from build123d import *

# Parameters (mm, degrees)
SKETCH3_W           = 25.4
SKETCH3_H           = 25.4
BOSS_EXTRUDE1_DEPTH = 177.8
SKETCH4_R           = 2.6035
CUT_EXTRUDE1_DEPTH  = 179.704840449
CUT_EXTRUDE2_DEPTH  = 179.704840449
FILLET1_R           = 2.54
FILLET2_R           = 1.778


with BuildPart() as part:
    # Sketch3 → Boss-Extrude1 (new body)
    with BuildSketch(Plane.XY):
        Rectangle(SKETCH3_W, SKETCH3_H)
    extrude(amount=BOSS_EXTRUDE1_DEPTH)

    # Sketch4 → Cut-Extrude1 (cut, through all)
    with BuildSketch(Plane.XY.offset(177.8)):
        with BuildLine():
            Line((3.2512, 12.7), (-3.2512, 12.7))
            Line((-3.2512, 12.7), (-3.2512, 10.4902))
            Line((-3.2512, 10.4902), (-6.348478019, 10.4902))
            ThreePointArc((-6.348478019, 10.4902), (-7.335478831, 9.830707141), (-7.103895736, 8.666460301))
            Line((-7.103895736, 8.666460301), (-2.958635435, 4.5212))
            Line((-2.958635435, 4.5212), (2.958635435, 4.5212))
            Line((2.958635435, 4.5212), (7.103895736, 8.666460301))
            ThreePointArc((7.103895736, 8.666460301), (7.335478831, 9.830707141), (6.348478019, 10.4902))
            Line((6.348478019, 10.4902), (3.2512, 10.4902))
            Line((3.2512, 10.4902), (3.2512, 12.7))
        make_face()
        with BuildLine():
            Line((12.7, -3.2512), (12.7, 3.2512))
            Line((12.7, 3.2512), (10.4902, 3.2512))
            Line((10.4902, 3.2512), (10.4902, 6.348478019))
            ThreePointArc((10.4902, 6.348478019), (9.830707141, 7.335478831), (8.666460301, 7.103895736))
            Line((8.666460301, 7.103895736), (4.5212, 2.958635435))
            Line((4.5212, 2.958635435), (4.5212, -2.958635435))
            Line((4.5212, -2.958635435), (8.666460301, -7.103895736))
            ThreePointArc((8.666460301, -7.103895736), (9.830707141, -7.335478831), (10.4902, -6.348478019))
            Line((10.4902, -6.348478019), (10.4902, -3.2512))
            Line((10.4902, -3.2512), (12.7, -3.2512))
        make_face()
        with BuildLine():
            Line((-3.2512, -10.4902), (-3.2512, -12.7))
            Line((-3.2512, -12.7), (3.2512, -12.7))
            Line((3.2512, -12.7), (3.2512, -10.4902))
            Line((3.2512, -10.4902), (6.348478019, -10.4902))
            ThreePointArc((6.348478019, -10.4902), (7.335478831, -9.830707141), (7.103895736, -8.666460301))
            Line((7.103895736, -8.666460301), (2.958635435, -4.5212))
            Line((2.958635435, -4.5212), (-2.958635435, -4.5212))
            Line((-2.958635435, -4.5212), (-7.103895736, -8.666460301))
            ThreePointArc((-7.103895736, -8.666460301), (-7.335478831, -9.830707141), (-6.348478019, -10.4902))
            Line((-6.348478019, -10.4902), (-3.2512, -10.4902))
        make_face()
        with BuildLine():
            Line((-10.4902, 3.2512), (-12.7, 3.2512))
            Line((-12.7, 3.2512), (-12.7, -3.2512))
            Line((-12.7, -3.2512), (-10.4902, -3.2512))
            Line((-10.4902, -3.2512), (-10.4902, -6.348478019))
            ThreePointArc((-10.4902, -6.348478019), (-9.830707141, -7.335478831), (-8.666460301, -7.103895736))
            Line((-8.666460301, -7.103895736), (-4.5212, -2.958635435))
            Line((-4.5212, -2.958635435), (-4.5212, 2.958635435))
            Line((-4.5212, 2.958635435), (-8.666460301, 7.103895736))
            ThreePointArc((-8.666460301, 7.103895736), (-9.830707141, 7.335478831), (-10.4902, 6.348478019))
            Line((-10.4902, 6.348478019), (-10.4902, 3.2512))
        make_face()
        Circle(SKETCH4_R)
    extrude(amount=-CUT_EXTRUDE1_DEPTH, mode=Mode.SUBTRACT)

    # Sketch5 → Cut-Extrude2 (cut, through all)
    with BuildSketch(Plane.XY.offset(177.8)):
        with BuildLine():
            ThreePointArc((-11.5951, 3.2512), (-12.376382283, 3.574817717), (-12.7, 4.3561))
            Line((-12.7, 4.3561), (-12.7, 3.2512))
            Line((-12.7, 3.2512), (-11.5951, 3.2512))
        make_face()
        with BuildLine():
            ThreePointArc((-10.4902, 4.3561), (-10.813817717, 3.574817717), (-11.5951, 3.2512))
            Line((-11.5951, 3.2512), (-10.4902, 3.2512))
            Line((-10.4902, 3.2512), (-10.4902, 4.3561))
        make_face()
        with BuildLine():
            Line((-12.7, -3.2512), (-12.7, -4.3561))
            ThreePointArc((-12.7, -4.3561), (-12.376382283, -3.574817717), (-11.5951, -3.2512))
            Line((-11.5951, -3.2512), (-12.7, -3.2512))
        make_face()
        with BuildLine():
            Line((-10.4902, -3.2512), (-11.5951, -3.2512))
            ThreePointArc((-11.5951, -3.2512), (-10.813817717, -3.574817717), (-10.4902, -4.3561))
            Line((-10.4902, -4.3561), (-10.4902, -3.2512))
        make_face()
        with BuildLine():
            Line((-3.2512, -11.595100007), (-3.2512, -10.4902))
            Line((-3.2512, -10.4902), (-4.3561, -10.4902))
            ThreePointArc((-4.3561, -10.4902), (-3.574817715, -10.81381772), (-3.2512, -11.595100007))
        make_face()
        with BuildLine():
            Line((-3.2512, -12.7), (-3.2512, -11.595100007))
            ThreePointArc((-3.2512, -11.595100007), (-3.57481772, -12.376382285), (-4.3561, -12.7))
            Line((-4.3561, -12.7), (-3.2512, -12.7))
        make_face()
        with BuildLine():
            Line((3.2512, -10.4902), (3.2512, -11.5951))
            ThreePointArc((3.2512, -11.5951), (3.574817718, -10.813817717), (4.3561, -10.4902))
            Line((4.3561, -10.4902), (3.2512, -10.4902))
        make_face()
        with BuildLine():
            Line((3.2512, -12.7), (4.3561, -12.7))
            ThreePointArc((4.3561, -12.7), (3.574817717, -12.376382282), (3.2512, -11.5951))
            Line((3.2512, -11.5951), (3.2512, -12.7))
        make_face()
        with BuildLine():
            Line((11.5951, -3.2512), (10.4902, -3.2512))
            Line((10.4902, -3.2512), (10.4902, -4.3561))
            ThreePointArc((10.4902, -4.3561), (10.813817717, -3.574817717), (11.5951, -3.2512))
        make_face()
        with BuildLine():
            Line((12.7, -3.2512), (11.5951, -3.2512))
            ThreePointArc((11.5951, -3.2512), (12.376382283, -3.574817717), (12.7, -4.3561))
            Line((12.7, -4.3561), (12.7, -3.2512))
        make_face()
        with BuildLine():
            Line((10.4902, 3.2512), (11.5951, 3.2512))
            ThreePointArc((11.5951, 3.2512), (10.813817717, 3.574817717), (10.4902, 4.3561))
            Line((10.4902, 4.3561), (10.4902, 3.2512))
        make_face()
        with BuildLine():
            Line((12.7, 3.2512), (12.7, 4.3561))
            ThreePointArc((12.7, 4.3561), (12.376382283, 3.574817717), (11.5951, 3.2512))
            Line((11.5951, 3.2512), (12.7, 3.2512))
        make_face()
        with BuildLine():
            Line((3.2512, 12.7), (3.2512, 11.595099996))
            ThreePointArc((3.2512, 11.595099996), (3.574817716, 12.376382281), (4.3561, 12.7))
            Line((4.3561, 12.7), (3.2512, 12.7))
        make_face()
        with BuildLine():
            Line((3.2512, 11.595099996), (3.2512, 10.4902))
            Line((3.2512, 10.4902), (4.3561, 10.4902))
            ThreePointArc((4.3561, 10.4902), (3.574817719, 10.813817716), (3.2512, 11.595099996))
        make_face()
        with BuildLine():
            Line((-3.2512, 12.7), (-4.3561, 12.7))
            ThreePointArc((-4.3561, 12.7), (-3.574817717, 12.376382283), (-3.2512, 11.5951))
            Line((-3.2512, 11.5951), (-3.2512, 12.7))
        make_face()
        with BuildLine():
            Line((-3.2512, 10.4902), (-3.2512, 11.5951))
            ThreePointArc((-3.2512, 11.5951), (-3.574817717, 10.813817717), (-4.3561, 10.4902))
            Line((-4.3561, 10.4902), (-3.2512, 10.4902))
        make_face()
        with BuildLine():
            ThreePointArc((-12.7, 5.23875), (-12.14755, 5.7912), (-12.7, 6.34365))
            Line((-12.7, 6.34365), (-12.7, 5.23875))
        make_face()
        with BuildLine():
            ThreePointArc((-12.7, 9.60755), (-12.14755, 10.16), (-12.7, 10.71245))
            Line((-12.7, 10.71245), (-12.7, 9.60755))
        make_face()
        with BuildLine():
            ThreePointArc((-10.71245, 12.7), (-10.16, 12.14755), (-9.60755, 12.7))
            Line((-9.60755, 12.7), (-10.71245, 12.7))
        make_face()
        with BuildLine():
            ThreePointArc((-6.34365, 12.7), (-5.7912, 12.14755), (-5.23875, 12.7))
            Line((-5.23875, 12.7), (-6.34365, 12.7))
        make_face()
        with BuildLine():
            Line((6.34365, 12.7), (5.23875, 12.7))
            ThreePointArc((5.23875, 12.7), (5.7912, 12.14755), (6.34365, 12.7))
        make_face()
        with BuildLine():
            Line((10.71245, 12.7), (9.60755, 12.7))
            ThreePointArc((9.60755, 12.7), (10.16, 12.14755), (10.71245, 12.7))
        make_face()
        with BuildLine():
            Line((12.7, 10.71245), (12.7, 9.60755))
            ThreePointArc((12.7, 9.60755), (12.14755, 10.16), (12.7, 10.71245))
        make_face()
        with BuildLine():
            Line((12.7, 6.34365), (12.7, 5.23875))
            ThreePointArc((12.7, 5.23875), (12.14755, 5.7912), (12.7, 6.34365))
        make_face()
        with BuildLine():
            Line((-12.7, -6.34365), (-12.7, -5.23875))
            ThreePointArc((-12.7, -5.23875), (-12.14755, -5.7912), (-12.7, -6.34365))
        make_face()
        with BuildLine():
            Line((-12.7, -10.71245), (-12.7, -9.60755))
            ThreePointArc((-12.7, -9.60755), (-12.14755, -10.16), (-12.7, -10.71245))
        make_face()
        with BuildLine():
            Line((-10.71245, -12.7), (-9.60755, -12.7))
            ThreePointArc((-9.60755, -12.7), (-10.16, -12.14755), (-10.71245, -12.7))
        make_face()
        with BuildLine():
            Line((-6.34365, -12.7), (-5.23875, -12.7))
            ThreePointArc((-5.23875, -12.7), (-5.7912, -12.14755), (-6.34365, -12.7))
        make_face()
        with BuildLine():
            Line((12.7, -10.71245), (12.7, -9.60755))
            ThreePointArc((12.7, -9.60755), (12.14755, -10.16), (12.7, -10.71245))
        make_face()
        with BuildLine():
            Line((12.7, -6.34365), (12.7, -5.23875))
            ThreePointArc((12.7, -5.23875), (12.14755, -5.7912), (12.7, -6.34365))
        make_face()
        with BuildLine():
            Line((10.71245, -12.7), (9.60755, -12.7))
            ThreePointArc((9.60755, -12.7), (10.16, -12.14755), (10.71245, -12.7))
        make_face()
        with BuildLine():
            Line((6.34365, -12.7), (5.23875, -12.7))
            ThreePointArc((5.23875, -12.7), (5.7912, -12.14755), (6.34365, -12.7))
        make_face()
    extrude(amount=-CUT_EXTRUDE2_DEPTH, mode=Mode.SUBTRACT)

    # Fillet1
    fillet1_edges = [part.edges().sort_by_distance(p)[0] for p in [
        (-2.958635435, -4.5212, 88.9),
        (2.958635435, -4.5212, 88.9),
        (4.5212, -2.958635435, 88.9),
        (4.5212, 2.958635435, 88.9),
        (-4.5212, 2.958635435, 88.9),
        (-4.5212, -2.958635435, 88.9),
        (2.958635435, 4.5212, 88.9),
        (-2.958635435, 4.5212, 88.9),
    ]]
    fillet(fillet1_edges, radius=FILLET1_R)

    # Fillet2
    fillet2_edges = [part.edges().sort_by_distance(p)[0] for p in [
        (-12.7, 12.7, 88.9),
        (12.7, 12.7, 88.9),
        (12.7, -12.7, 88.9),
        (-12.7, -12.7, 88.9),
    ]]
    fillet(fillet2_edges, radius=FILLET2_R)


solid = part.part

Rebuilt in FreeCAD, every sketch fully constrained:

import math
import FreeCAD as App
import Part
import Sketcher
Q = App.Units.Quantity


def edges_at(feature, points):
    """Names of the edges that pass closest to the given points."""
    edges = feature.Shape.Edges
    near = lambda p: min(range(len(edges)), key=lambda i: edges[i].distToShape(Part.Vertex(*p))[0])
    return sorted({f"Edge{near(p) + 1}" for p in points})


def add_polygon(sketch, points):
    """Adds a closed chain of lines whose ends are joined by coincident constraints."""
    first, n = sketch.GeometryCount, len(points)
    for a, b in zip(points, points[1:] + points[:1]):
        sketch.addGeometry(Part.LineSegment(App.Vector(*a, 0), App.Vector(*b, 0)), False)
    for i in range(n):
        sketch.addConstraint(Sketcher.Constraint("Coincident", first + i, 2, first + (i + 1) % n, 1))

doc = App.newDocument("Part")
body = doc.addObject("PartDesign::Body", "Body")

sketch1 = body.newObject("Sketcher::SketchObject", "Sketch")
sketch1.AttachmentSupport = (doc.getObject("XY_Plane"), [""])
sketch1.MapMode = "FlatFace"
add_polygon(sketch1, [(-13, 13), (-13, -13), (13, -13), (13, 13)])
sketch1.addConstraint([
    Sketcher.Constraint("Vertical", 0),
    Sketcher.Constraint("Horizontal", 1),
    Sketcher.Constraint("Vertical", 2),
    Sketcher.Constraint("Horizontal", 3),
    Sketcher.Constraint("Symmetric", 0, 2, 2, 2, -1, 1),
    Sketcher.Constraint("Equal", 3, 0),
    Sketcher.Constraint("DistanceX", 1, 1, 1, 2, Q("1 in")),
])
pad1 = body.newObject("PartDesign::Pad", "Pad")
pad1.Profile = sketch1
pad1.Length = Q("7 in")

sketch2 = body.newObject("Sketcher::SketchObject", "Sketch001")
sketch2.AttachmentSupport = (doc.getObject("XY_Plane"), [""])
sketch2.MapMode = "FlatFace"
sketch2.AttachmentOffset = App.Placement(App.Vector(0, 0, 7 * 25.4), App.Rotation())
sketch2.addGeometry([
    Part.LineSegment(App.Vector(3.3, 12.7, 0), App.Vector(-3.3, 12.7, 0)),
    Part.LineSegment(App.Vector(-3.3, 12.7, 0), App.Vector(-3.3, 10.5, 0)),
    Part.LineSegment(App.Vector(-3.3, 10.5, 0), App.Vector(-6.3, 10.5, 0)),
    Part.ArcOfCircle(Part.Circle(App.Vector(-6.3, 9.4, 0), App.Vector(0, 0, 1), 1.1), math.radians(90), math.radians(225)),
    Part.LineSegment(App.Vector(-7.1, 8.7, 0), App.Vector(-3, 4.5, 0)),
    Part.LineSegment(App.Vector(-3, 4.5, 0), App.Vector(3, 4.5, 0)),
    Part.LineSegment(App.Vector(3, 4.5, 0), App.Vector(7.1, 8.7, 0)),
    Part.ArcOfCircle(Part.Circle(App.Vector(6.3, 9.4, 0), App.Vector(0, 0, 1), 1.1), math.radians(-45), math.radians(90)),
    Part.LineSegment(App.Vector(6.3, 10.5, 0), App.Vector(3.3, 10.5, 0)),
    Part.LineSegment(App.Vector(3.3, 10.5, 0), App.Vector(3.3, 12.7, 0)),
    Part.LineSegment(App.Vector(12.7, -3.3, 0), App.Vector(12.7, 3.3, 0)),
    Part.LineSegment(App.Vector(12.7, 3.3, 0), App.Vector(10.5, 3.3, 0)),
    Part.LineSegment(App.Vector(10.5, 3.3, 0), App.Vector(10.5, 6.3, 0)),
    Part.ArcOfCircle(Part.Circle(App.Vector(9.4, 6.3, 0), App.Vector(0, 0, 1), 1.1), math.radians(0), math.radians(135)),
    Part.LineSegment(App.Vector(8.7, 7.1, 0), App.Vector(4.5, 3, 0)),
    Part.LineSegment(App.Vector(4.5, 3, 0), App.Vector(4.5, -3, 0)),
    Part.LineSegment(App.Vector(4.5, -3, 0), App.Vector(8.7, -7.1, 0)),
    Part.ArcOfCircle(Part.Circle(App.Vector(9.4, -6.3, 0), App.Vector(0, 0, 1), 1.1), math.radians(-135), math.radians(0)),
    Part.LineSegment(App.Vector(10.5, -6.3, 0), App.Vector(10.5, -3.3, 0)),
    Part.LineSegment(App.Vector(10.5, -3.3, 0), App.Vector(12.7, -3.3, 0)),
    Part.LineSegment(App.Vector(-3.3, -10.5, 0), App.Vector(-3.3, -12.7, 0)),
    Part.LineSegment(App.Vector(-3.3, -12.7, 0), App.Vector(3.3, -12.7, 0)),
    Part.LineSegment(App.Vector(3.3, -12.7, 0), App.Vector(3.3, -10.5, 0)),
    Part.LineSegment(App.Vector(3.3, -10.5, 0), App.Vector(6.3, -10.5, 0)),
    Part.ArcOfCircle(Part.Circle(App.Vector(6.3, -9.4, 0), App.Vector(0, 0, 1), 1.1), math.radians(-90), math.radians(45)),
    Part.LineSegment(App.Vector(7.1, -8.7, 0), App.Vector(3, -4.5, 0)),
    Part.LineSegment(App.Vector(3, -4.5, 0), App.Vector(-3, -4.5, 0)),
    Part.LineSegment(App.Vector(-3, -4.5, 0), App.Vector(-7.1, -8.7, 0)),
    Part.ArcOfCircle(Part.Circle(App.Vector(-6.3, -9.4, 0), App.Vector(0, 0, 1), 1.1), math.radians(135), math.radians(270)),
    Part.LineSegment(App.Vector(-6.3, -10.5, 0), App.Vector(-3.3, -10.5, 0)),
    Part.LineSegment(App.Vector(-10.5, 3.3, 0), App.Vector(-12.7, 3.3, 0)),
    Part.LineSegment(App.Vector(-12.7, 3.3, 0), App.Vector(-12.7, -3.3, 0)),
    Part.LineSegment(App.Vector(-12.7, -3.3, 0), App.Vector(-10.5, -3.3, 0)),
    Part.LineSegment(App.Vector(-10.5, -3.3, 0), App.Vector(-10.5, -6.3, 0)),
    Part.ArcOfCircle(Part.Circle(App.Vector(-9.4, -6.3, 0), App.Vector(0, 0, 1), 1.1), math.radians(-180), math.radians(-45)),
    Part.LineSegment(App.Vector(-8.7, -7.1, 0), App.Vector(-4.5, -3, 0)),
    Part.LineSegment(App.Vector(-4.5, -3, 0), App.Vector(-4.5, 3, 0)),
    Part.LineSegment(App.Vector(-4.5, 3, 0), App.Vector(-8.7, 7.1, 0)),
    Part.ArcOfCircle(Part.Circle(App.Vector(-9.4, 6.3, 0), App.Vector(0, 0, 1), 1.1), math.radians(45), math.radians(180)),
    Part.LineSegment(App.Vector(-10.5, 6.3, 0), App.Vector(-10.5, 3.3, 0)),
    Part.Circle(App.Vector(0, 0, 0), App.Vector(0, 0, 1), 2.6),
], False)
sketch2.addConstraint([
    Sketcher.Constraint("Coincident", 0, 2, 1, 1),
    Sketcher.Constraint("Coincident", 1, 2, 2, 1),
    Sketcher.Constraint("Tangent", 2, 2, 3, 1),
    Sketcher.Constraint("Tangent", 3, 2, 4, 1),
    Sketcher.Constraint("Coincident", 4, 2, 5, 1),
    Sketcher.Constraint("Coincident", 5, 2, 6, 1),
    Sketcher.Constraint("Tangent", 6, 2, 7, 1),
    Sketcher.Constraint("Tangent", 7, 2, 8, 1),
    Sketcher.Constraint("Coincident", 8, 2, 9, 1),
    Sketcher.Constraint("Coincident", 9, 2, 0, 1),
    Sketcher.Constraint("Coincident", 10, 2, 11, 1),
    Sketcher.Constraint("Coincident", 11, 2, 12, 1),
    Sketcher.Constraint("Tangent", 12, 2, 13, 1),
    Sketcher.Constraint("Tangent", 13, 2, 14, 1),
    Sketcher.Constraint("Coincident", 14, 2, 15, 1),
    Sketcher.Constraint("Coincident", 15, 2, 16, 1),
    Sketcher.Constraint("Tangent", 16, 2, 17, 1),
    Sketcher.Constraint("Tangent", 17, 2, 18, 1),
    Sketcher.Constraint("Coincident", 18, 2, 19, 1),
    Sketcher.Constraint("Coincident", 19, 2, 10, 1),
    Sketcher.Constraint("Coincident", 20, 2, 21, 1),
    Sketcher.Constraint("Coincident", 21, 2, 22, 1),
    Sketcher.Constraint("Coincident", 22, 2, 23, 1),
    Sketcher.Constraint("Tangent", 23, 2, 24, 1),
    Sketcher.Constraint("Tangent", 24, 2, 25, 1),
    Sketcher.Constraint("Coincident", 25, 2, 26, 1),
    Sketcher.Constraint("Coincident", 26, 2, 27, 1),
    Sketcher.Constraint("Tangent", 27, 2, 28, 1),
    Sketcher.Constraint("Tangent", 28, 2, 29, 1),
    Sketcher.Constraint("Coincident", 29, 2, 20, 1),
    Sketcher.Constraint("Coincident", 30, 2, 31, 1),
    Sketcher.Constraint("Coincident", 31, 2, 32, 1),
    Sketcher.Constraint("Coincident", 32, 2, 33, 1),
    Sketcher.Constraint("Tangent", 33, 2, 34, 1),
    Sketcher.Constraint("Tangent", 34, 2, 35, 1),
    Sketcher.Constraint("Coincident", 35, 2, 36, 1),
    Sketcher.Constraint("Coincident", 36, 2, 37, 1),
    Sketcher.Constraint("Tangent", 37, 2, 38, 1),
    Sketcher.Constraint("Tangent", 38, 2, 39, 1),
    Sketcher.Constraint("Coincident", 39, 2, 30, 1),
    Sketcher.Constraint("Horizontal", 0),
    Sketcher.Constraint("Vertical", 1),
    Sketcher.Constraint("Horizontal", 2),
    Sketcher.Constraint("Horizontal", 5),
    Sketcher.Constraint("Horizontal", 8),
    Sketcher.Constraint("Vertical", 9),
    Sketcher.Constraint("Vertical", 10),
    Sketcher.Constraint("Horizontal", 11),
    Sketcher.Constraint("Vertical", 12),
    Sketcher.Constraint("Vertical", 15),
    Sketcher.Constraint("Vertical", 18),
    Sketcher.Constraint("Horizontal", 19),
    Sketcher.Constraint("Vertical", 20),
    Sketcher.Constraint("Horizontal", 21),
    Sketcher.Constraint("Vertical", 22),
    Sketcher.Constraint("Horizontal", 23),
    Sketcher.Constraint("Horizontal", 26),
    Sketcher.Constraint("Horizontal", 29),
    Sketcher.Constraint("Horizontal", 30),
    Sketcher.Constraint("Vertical", 31),
    Sketcher.Constraint("Horizontal", 32),
    Sketcher.Constraint("Vertical", 33),
    Sketcher.Constraint("Vertical", 36),
    Sketcher.Constraint("Vertical", 39),
    Sketcher.Constraint("Coincident", 40, 3, -1, 1),
    Sketcher.Constraint("Equal", 3, 7),
    Sketcher.Constraint("Equal", 7, 13),
    Sketcher.Constraint("Equal", 13, 17),
    Sketcher.Constraint("Equal", 17, 24),
    Sketcher.Constraint("Equal", 24, 28),
    Sketcher.Constraint("Equal", 28, 34),
    Sketcher.Constraint("Equal", 34, 38),
    Sketcher.Constraint("Symmetric", 3, 3, 24, 3, -1, 1),
    Sketcher.Constraint("Symmetric", 7, 3, 28, 3, -1, 1),
    Sketcher.Constraint("Symmetric", 13, 3, 34, 3, -1, 1),
    Sketcher.Constraint("Symmetric", 17, 3, 38, 3, -1, 1),
    Sketcher.Constraint("Symmetric", 9, 2, 20, 2, -1, 1),
    Sketcher.Constraint("Symmetric", 4, 2, 25, 2, -1, 1),
    Sketcher.Constraint("Symmetric", 19, 2, 30, 2, -1, 1),
    Sketcher.Constraint("Symmetric", 14, 2, 35, 2, -1, 1),
    Sketcher.Constraint("Symmetric", 3, 3, 7, 3, -2),
    Sketcher.Constraint("Symmetric", 17, 3, 34, 3, -2),
    Sketcher.Constraint("Perpendicular", 4, 6),
    Sketcher.Constraint("Parallel", 6, 14),
    Sketcher.Constraint("Perpendicular", 14, 16),
    Sketcher.Constraint("Perpendicular", 25, 27),
    Sketcher.Constraint("Perpendicular", 35, 37),
    Sketcher.Constraint("Horizontal", 3, 2, 6, 2),
    Sketcher.Constraint("Horizontal", 11, 2, 30, 2),
    Sketcher.Constraint("Horizontal", 19, 2, 31, 2),
    Sketcher.Constraint("Vertical", 1, 2, 20, 2),
    Sketcher.Constraint("Vertical", 9, 2, 21, 2),
    Sketcher.Constraint("Equal", 32, 1),
    Sketcher.Constraint("Equal", 21, 10),
    Sketcher.Constraint("Equal", 29, 12),
    Sketcher.Constraint("Equal", 26, 15),
    Sketcher.Constraint("Diameter", 40, Q("0.205 in")),
    Sketcher.Constraint("DistanceY", -1, 1, 0, 2, Q("0.5 in")),
    Sketcher.Constraint("DistanceX", -1, 1, 10, 2, Q("0.5 in")),
    Sketcher.Constraint("DistanceX", 0, 2, 0, 1, Q("0.256 in")),
    Sketcher.Constraint("DistanceX", 11, 2, 11, 1, Q("0.087 in")),
    Sketcher.Constraint("DistanceY", 10, 2, 5, 2, Q("0.05 in")),
    Sketcher.Constraint("Radius", 3, Q("1.068322 mm")),
    Sketcher.Constraint("DistanceX", 7, 3, 13, 3, Q("0.121 in")),
])
pocket1 = body.newObject("PartDesign::Pocket", "Pocket")
pocket1.Profile = sketch2
pocket1.Type = "ThroughAll"

sketch3 = body.newObject("Sketcher::SketchObject", "Sketch002")
sketch3.AttachmentSupport = (doc.getObject("XY_Plane"), [""])
sketch3.MapMode = "FlatFace"
sketch3.AttachmentOffset = App.Placement(App.Vector(0, 0, 7 * 25.4), App.Rotation())
sketch3.addGeometry([
    Part.ArcOfCircle(Part.Circle(App.Vector(-11.6, 4.4, 0), App.Vector(0, 0, 1), 1.1), math.radians(180), math.radians(270)),
    Part.LineSegment(App.Vector(-12.7, 4.4, 0), App.Vector(-12.7, 3.3, 0)),
    Part.LineSegment(App.Vector(-12.7, 3.3, 0), App.Vector(-11.6, 3.3, 0)),
    Part.ArcOfCircle(Part.Circle(App.Vector(-11.6, 4.4, 0), App.Vector(0, 0, 1), 1.1), math.radians(-90), math.radians(0)),
    Part.LineSegment(App.Vector(-11.6, 3.3, 0), App.Vector(-10.5, 3.3, 0)),
    Part.LineSegment(App.Vector(-10.5, 3.3, 0), App.Vector(-10.5, 4.4, 0)),
    Part.LineSegment(App.Vector(-12.7, -3.3, 0), App.Vector(-12.7, -4.4, 0)),
    Part.ArcOfCircle(Part.Circle(App.Vector(-11.6, -4.4, 0), App.Vector(0, 0, 1), 1.1), math.radians(90), math.radians(180)),
    Part.LineSegment(App.Vector(-11.6, -3.3, 0), App.Vector(-12.7, -3.3, 0)),
    Part.LineSegment(App.Vector(-10.5, -3.3, 0), App.Vector(-11.6, -3.3, 0)),
    Part.ArcOfCircle(Part.Circle(App.Vector(-11.6, -4.4, 0), App.Vector(0, 0, 1), 1.1), math.radians(0), math.radians(90)),
    Part.LineSegment(App.Vector(-10.5, -4.4, 0), App.Vector(-10.5, -3.3, 0)),
    Part.LineSegment(App.Vector(-3.3, -11.6, 0), App.Vector(-3.3, -10.5, 0)),
    Part.LineSegment(App.Vector(-3.3, -10.5, 0), App.Vector(-4.4, -10.5, 0)),
    Part.ArcOfCircle(Part.Circle(App.Vector(-4.4, -11.6, 0), App.Vector(0, 0, 1), 1.1), math.radians(0), math.radians(90)),
    Part.LineSegment(App.Vector(-3.3, -12.7, 0), App.Vector(-3.3, -11.6, 0)),
    Part.ArcOfCircle(Part.Circle(App.Vector(-4.4, -11.6, 0), App.Vector(0, 0, 1), 1.1), math.radians(-90), math.radians(0)),
    Part.LineSegment(App.Vector(-4.4, -12.7, 0), App.Vector(-3.3, -12.7, 0)),
    Part.LineSegment(App.Vector(3.3, -10.5, 0), App.Vector(3.3, -11.6, 0)),
    Part.ArcOfCircle(Part.Circle(App.Vector(4.4, -11.6, 0), App.Vector(0, 0, 1), 1.1), math.radians(90), math.radians(180)),
    Part.LineSegment(App.Vector(4.4, -10.5, 0), App.Vector(3.3, -10.5, 0)),
    Part.LineSegment(App.Vector(3.3, -12.7, 0), App.Vector(4.4, -12.7, 0)),
    Part.ArcOfCircle(Part.Circle(App.Vector(4.4, -11.6, 0), App.Vector(0, 0, 1), 1.1), math.radians(180), math.radians(270)),
    Part.LineSegment(App.Vector(3.3, -11.6, 0), App.Vector(3.3, -12.7, 0)),
    Part.LineSegment(App.Vector(11.6, -3.3, 0), App.Vector(10.5, -3.3, 0)),
    Part.LineSegment(App.Vector(10.5, -3.3, 0), App.Vector(10.5, -4.4, 0)),
    Part.ArcOfCircle(Part.Circle(App.Vector(11.6, -4.4, 0), App.Vector(0, 0, 1), 1.1), math.radians(90), math.radians(180)),
    Part.LineSegment(App.Vector(12.7, -3.3, 0), App.Vector(11.6, -3.3, 0)),
    Part.ArcOfCircle(Part.Circle(App.Vector(11.6, -4.4, 0), App.Vector(0, 0, 1), 1.1), math.radians(0), math.radians(90)),
    Part.LineSegment(App.Vector(12.7, -4.4, 0), App.Vector(12.7, -3.3, 0)),
    Part.LineSegment(App.Vector(10.5, 3.3, 0), App.Vector(11.6, 3.3, 0)),
    Part.ArcOfCircle(Part.Circle(App.Vector(11.6, 4.4, 0), App.Vector(0, 0, 1), 1.1), math.radians(180), math.radians(270)),
    Part.LineSegment(App.Vector(10.5, 4.4, 0), App.Vector(10.5, 3.3, 0)),
    Part.LineSegment(App.Vector(12.7, 3.3, 0), App.Vector(12.7, 4.4, 0)),
    Part.ArcOfCircle(Part.Circle(App.Vector(11.6, 4.4, 0), App.Vector(0, 0, 1), 1.1), math.radians(-90), math.radians(0)),
    Part.LineSegment(App.Vector(11.6, 3.3, 0), App.Vector(12.7, 3.3, 0)),
    Part.LineSegment(App.Vector(3.3, 12.7, 0), App.Vector(3.3, 11.6, 0)),
    Part.ArcOfCircle(Part.Circle(App.Vector(4.4, 11.6, 0), App.Vector(0, 0, 1), 1.1), math.radians(90), math.radians(180)),
    Part.LineSegment(App.Vector(4.4, 12.7, 0), App.Vector(3.3, 12.7, 0)),
    Part.LineSegment(App.Vector(3.3, 11.6, 0), App.Vector(3.3, 10.5, 0)),
    Part.LineSegment(App.Vector(3.3, 10.5, 0), App.Vector(4.4, 10.5, 0)),
    Part.ArcOfCircle(Part.Circle(App.Vector(4.4, 11.6, 0), App.Vector(0, 0, 1), 1.1), math.radians(-180), math.radians(-90)),
    Part.LineSegment(App.Vector(-3.3, 12.7, 0), App.Vector(-4.4, 12.7, 0)),
    Part.ArcOfCircle(Part.Circle(App.Vector(-4.4, 11.6, 0), App.Vector(0, 0, 1), 1.1), math.radians(0), math.radians(90)),
    Part.LineSegment(App.Vector(-3.3, 11.6, 0), App.Vector(-3.3, 12.7, 0)),
    Part.LineSegment(App.Vector(-3.3, 10.5, 0), App.Vector(-3.3, 11.6, 0)),
    Part.ArcOfCircle(Part.Circle(App.Vector(-4.4, 11.6, 0), App.Vector(0, 0, 1), 1.1), math.radians(-90), math.radians(0)),
    Part.LineSegment(App.Vector(-4.4, 10.5, 0), App.Vector(-3.3, 10.5, 0)),
    Part.ArcOfCircle(Part.Circle(App.Vector(-12.7, 5.8, 0), App.Vector(0, 0, 1), 0.6), math.radians(-90), math.radians(90)),
    Part.LineSegment(App.Vector(-12.7, 6.3, 0), App.Vector(-12.7, 5.2, 0)),
    Part.ArcOfCircle(Part.Circle(App.Vector(-12.7, 10.2, 0), App.Vector(0, 0, 1), 0.6), math.radians(-90), math.radians(90)),
    Part.LineSegment(App.Vector(-12.7, 10.7, 0), App.Vector(-12.7, 9.6, 0)),
    Part.ArcOfCircle(Part.Circle(App.Vector(-10.2, 12.7, 0), App.Vector(0, 0, 1), 0.6), math.radians(180), math.radians(360)),
    Part.LineSegment(App.Vector(-9.6, 12.7, 0), App.Vector(-10.7, 12.7, 0)),
    Part.ArcOfCircle(Part.Circle(App.Vector(-5.8, 12.7, 0), App.Vector(0, 0, 1), 0.6), math.radians(180), math.radians(360)),
    Part.LineSegment(App.Vector(-5.2, 12.7, 0), App.Vector(-6.3, 12.7, 0)),
    Part.LineSegment(App.Vector(6.3, 12.7, 0), App.Vector(5.2, 12.7, 0)),
    Part.ArcOfCircle(Part.Circle(App.Vector(5.8, 12.7, 0), App.Vector(0, 0, 1), 0.6), math.radians(180), math.radians(360)),
    Part.LineSegment(App.Vector(10.7, 12.7, 0), App.Vector(9.6, 12.7, 0)),
    Part.ArcOfCircle(Part.Circle(App.Vector(10.2, 12.7, 0), App.Vector(0, 0, 1), 0.6), math.radians(180), math.radians(360)),
    Part.LineSegment(App.Vector(12.7, 9.6, 0), App.Vector(12.7, 10.7, 0)),
    Part.ArcOfCircle(Part.Circle(App.Vector(12.7, 10.2, 0), App.Vector(0, 0, 1), 0.6), math.radians(90), math.radians(270)),
    Part.LineSegment(App.Vector(12.7, 5.2, 0), App.Vector(12.7, 6.3, 0)),
    Part.ArcOfCircle(Part.Circle(App.Vector(12.7, 5.8, 0), App.Vector(0, 0, 1), 0.6), math.radians(90), math.radians(270)),
    Part.LineSegment(App.Vector(-12.7, -5.2, 0), App.Vector(-12.7, -6.3, 0)),
    Part.ArcOfCircle(Part.Circle(App.Vector(-12.7, -5.8, 0), App.Vector(0, 0, 1), 0.6), math.radians(-90), math.radians(90)),
    Part.LineSegment(App.Vector(-12.7, -9.6, 0), App.Vector(-12.7, -10.7, 0)),
    Part.ArcOfCircle(Part.Circle(App.Vector(-12.7, -10.2, 0), App.Vector(0, 0, 1), 0.6), math.radians(-90), math.radians(90)),
    Part.LineSegment(App.Vector(-10.7, -12.7, 0), App.Vector(-9.6, -12.7, 0)),
    Part.ArcOfCircle(Part.Circle(App.Vector(-10.2, -12.7, 0), App.Vector(0, 0, 1), 0.6), math.radians(0), math.radians(180)),
    Part.LineSegment(App.Vector(-6.3, -12.7, 0), App.Vector(-5.2, -12.7, 0)),
    Part.ArcOfCircle(Part.Circle(App.Vector(-5.8, -12.7, 0), App.Vector(0, 0, 1), 0.6), math.radians(0), math.radians(180)),
    Part.LineSegment(App.Vector(12.7, -10.7, 0), App.Vector(12.7, -9.6, 0)),
    Part.ArcOfCircle(Part.Circle(App.Vector(12.7, -10.2, 0), App.Vector(0, 0, 1), 0.6), math.radians(90), math.radians(270)),
    Part.LineSegment(App.Vector(12.7, -6.3, 0), App.Vector(12.7, -5.2, 0)),
    Part.ArcOfCircle(Part.Circle(App.Vector(12.7, -5.8, 0), App.Vector(0, 0, 1), 0.6), math.radians(90), math.radians(270)),
    Part.LineSegment(App.Vector(9.6, -12.7, 0), App.Vector(10.7, -12.7, 0)),
    Part.ArcOfCircle(Part.Circle(App.Vector(10.2, -12.7, 0), App.Vector(0, 0, 1), 0.6), math.radians(0), math.radians(180)),
    Part.LineSegment(App.Vector(5.2, -12.7, 0), App.Vector(6.3, -12.7, 0)),
    Part.ArcOfCircle(Part.Circle(App.Vector(5.8, -12.7, 0), App.Vector(0, 0, 1), 0.6), math.radians(0), math.radians(180)),
], False)
sketch3.addConstraint([
    Sketcher.Constraint("Tangent", 0, 1, 1, 1),
    Sketcher.Constraint("Coincident", 1, 2, 2, 1),
    Sketcher.Constraint("Tangent", 2, 2, 0, 2),
    Sketcher.Constraint("Tangent", 3, 1, 4, 1),
    Sketcher.Constraint("Coincident", 4, 2, 5, 1),
    Sketcher.Constraint("Tangent", 5, 2, 3, 2),
    Sketcher.Constraint("Tangent", 6, 2, 7, 2),
    Sketcher.Constraint("Tangent", 7, 1, 8, 1),
    Sketcher.Constraint("Coincident", 8, 2, 6, 1),
    Sketcher.Constraint("Tangent", 9, 2, 10, 2),
    Sketcher.Constraint("Tangent", 10, 1, 11, 1),
    Sketcher.Constraint("Coincident", 11, 2, 9, 1),
    Sketcher.Constraint("Coincident", 12, 2, 13, 1),
    Sketcher.Constraint("Tangent", 13, 2, 14, 2),
    Sketcher.Constraint("Tangent", 14, 1, 12, 1),
    Sketcher.Constraint("Tangent", 15, 2, 16, 2),
    Sketcher.Constraint("Tangent", 16, 1, 17, 1),
    Sketcher.Constraint("Coincident", 17, 2, 15, 1),
    Sketcher.Constraint("Tangent", 18, 2, 19, 2),
    Sketcher.Constraint("Tangent", 19, 1, 20, 1),
    Sketcher.Constraint("Coincident", 20, 2, 18, 1),
    Sketcher.Constraint("Tangent", 21, 2, 22, 2),
    Sketcher.Constraint("Tangent", 22, 1, 23, 1),
    Sketcher.Constraint("Coincident", 23, 2, 21, 1),
    Sketcher.Constraint("Coincident", 24, 2, 25, 1),
    Sketcher.Constraint("Tangent", 25, 2, 26, 2),
    Sketcher.Constraint("Tangent", 26, 1, 24, 1),
    Sketcher.Constraint("Tangent", 27, 2, 28, 2),
    Sketcher.Constraint("Tangent", 28, 1, 29, 1),
    Sketcher.Constraint("Coincident", 29, 2, 27, 1),
    Sketcher.Constraint("Tangent", 30, 2, 31, 2),
    Sketcher.Constraint("Tangent", 31, 1, 32, 1),
    Sketcher.Constraint("Coincident", 32, 2, 30, 1),
    Sketcher.Constraint("Tangent", 33, 2, 34, 2),
    Sketcher.Constraint("Tangent", 34, 1, 35, 1),
    Sketcher.Constraint("Coincident", 35, 2, 33, 1),
    Sketcher.Constraint("Tangent", 36, 2, 37, 2),
    Sketcher.Constraint("Tangent", 37, 1, 38, 1),
    Sketcher.Constraint("Coincident", 38, 2, 36, 1),
    Sketcher.Constraint("Coincident", 39, 2, 40, 1),
    Sketcher.Constraint("Tangent", 40, 2, 41, 2),
    Sketcher.Constraint("Tangent", 41, 1, 39, 1),
    Sketcher.Constraint("Tangent", 42, 2, 43, 2),
    Sketcher.Constraint("Tangent", 43, 1, 44, 1),
    Sketcher.Constraint("Coincident", 44, 2, 42, 1),
    Sketcher.Constraint("Tangent", 45, 2, 46, 2),
    Sketcher.Constraint("Tangent", 46, 1, 47, 1),
    Sketcher.Constraint("Coincident", 47, 2, 45, 1),
    Sketcher.Constraint("Coincident", 48, 1, 49, 2),
    Sketcher.Constraint("Coincident", 49, 1, 48, 2),
    Sketcher.Constraint("Coincident", 50, 1, 51, 2),
    Sketcher.Constraint("Coincident", 51, 1, 50, 2),
    Sketcher.Constraint("Coincident", 52, 1, 53, 2),
    Sketcher.Constraint("Coincident", 53, 1, 52, 2),
    Sketcher.Constraint("Coincident", 54, 1, 55, 2),
    Sketcher.Constraint("Coincident", 55, 1, 54, 2),
    Sketcher.Constraint("Coincident", 56, 1, 57, 2),
    Sketcher.Constraint("Coincident", 57, 1, 56, 2),
    Sketcher.Constraint("Coincident", 58, 1, 59, 2),
    Sketcher.Constraint("Coincident", 59, 1, 58, 2),
    Sketcher.Constraint("Coincident", 60, 1, 61, 2),
    Sketcher.Constraint("Coincident", 61, 1, 60, 2),
    Sketcher.Constraint("Coincident", 62, 1, 63, 2),
    Sketcher.Constraint("Coincident", 63, 1, 62, 2),
    Sketcher.Constraint("Coincident", 64, 1, 65, 2),
    Sketcher.Constraint("Coincident", 65, 1, 64, 2),
    Sketcher.Constraint("Coincident", 66, 1, 67, 2),
    Sketcher.Constraint("Coincident", 67, 1, 66, 2),
    Sketcher.Constraint("Coincident", 68, 1, 69, 2),
    Sketcher.Constraint("Coincident", 69, 1, 68, 2),
    Sketcher.Constraint("Coincident", 70, 1, 71, 2),
    Sketcher.Constraint("Coincident", 71, 1, 70, 2),
    Sketcher.Constraint("Coincident", 72, 1, 73, 2),
    Sketcher.Constraint("Coincident", 73, 1, 72, 2),
    Sketcher.Constraint("Coincident", 74, 1, 75, 2),
    Sketcher.Constraint("Coincident", 75, 1, 74, 2),
    Sketcher.Constraint("Coincident", 76, 1, 77, 2),
    Sketcher.Constraint("Coincident", 77, 1, 76, 2),
    Sketcher.Constraint("Coincident", 78, 1, 79, 2),
    Sketcher.Constraint("Coincident", 79, 1, 78, 2),
    Sketcher.Constraint("Vertical", 1),
    Sketcher.Constraint("Horizontal", 2),
    Sketcher.Constraint("Horizontal", 4),
    Sketcher.Constraint("Vertical", 5),
    Sketcher.Constraint("Vertical", 6),
    Sketcher.Constraint("Horizontal", 8),
    Sketcher.Constraint("Horizontal", 9),
    Sketcher.Constraint("Vertical", 11),
    Sketcher.Constraint("Vertical", 12),
    Sketcher.Constraint("Horizontal", 13),
    Sketcher.Constraint("Vertical", 15),
    Sketcher.Constraint("Horizontal", 17),
    Sketcher.Constraint("Vertical", 18),
    Sketcher.Constraint("Horizontal", 20),
    Sketcher.Constraint("Horizontal", 21),
    Sketcher.Constraint("Vertical", 23),
    Sketcher.Constraint("Horizontal", 24),
    Sketcher.Constraint("Vertical", 25),
    Sketcher.Constraint("Horizontal", 27),
    Sketcher.Constraint("Vertical", 29),
    Sketcher.Constraint("Horizontal", 30),
    Sketcher.Constraint("Vertical", 32),
    Sketcher.Constraint("Vertical", 33),
    Sketcher.Constraint("Horizontal", 35),
    Sketcher.Constraint("Vertical", 36),
    Sketcher.Constraint("Horizontal", 38),
    Sketcher.Constraint("Vertical", 39),
    Sketcher.Constraint("Horizontal", 40),
    Sketcher.Constraint("Horizontal", 42),
    Sketcher.Constraint("Vertical", 44),
    Sketcher.Constraint("Vertical", 45),
    Sketcher.Constraint("Horizontal", 47),
    Sketcher.Constraint("Vertical", 49),
    Sketcher.Constraint("Vertical", 51),
    Sketcher.Constraint("Horizontal", 53),
    Sketcher.Constraint("Horizontal", 55),
    Sketcher.Constraint("Horizontal", 56),
    Sketcher.Constraint("Horizontal", 58),
    Sketcher.Constraint("Vertical", 60),
    Sketcher.Constraint("Vertical", 62),
    Sketcher.Constraint("Vertical", 64),
    Sketcher.Constraint("Vertical", 66),
    Sketcher.Constraint("Horizontal", 68),
    Sketcher.Constraint("Horizontal", 70),
    Sketcher.Constraint("Vertical", 72),
    Sketcher.Constraint("Vertical", 74),
    Sketcher.Constraint("Horizontal", 76),
    Sketcher.Constraint("Horizontal", 78),
    Sketcher.Constraint("Coincident", 3, 3, 0, 3),
    Sketcher.Constraint("Coincident", 10, 3, 7, 3),
    Sketcher.Constraint("Coincident", 16, 3, 14, 3),
    Sketcher.Constraint("Coincident", 22, 3, 19, 3),
    Sketcher.Constraint("Coincident", 28, 3, 26, 3),
    Sketcher.Constraint("Coincident", 34, 3, 31, 3),
    Sketcher.Constraint("Coincident", 41, 3, 37, 3),
    Sketcher.Constraint("Coincident", 46, 3, 43, 3),
    Sketcher.Constraint("Equal", 0, 3),
    Sketcher.Constraint("Equal", 3, 7),
    Sketcher.Constraint("Equal", 7, 10),
    Sketcher.Constraint("Equal", 10, 14),
    Sketcher.Constraint("Equal", 14, 16),
    Sketcher.Constraint("Equal", 16, 19),
    Sketcher.Constraint("Equal", 19, 22),
    Sketcher.Constraint("Equal", 22, 26),
    Sketcher.Constraint("Equal", 26, 28),
    Sketcher.Constraint("Equal", 28, 31),
    Sketcher.Constraint("Equal", 31, 34),
    Sketcher.Constraint("Equal", 34, 37),
    Sketcher.Constraint("Equal", 37, 41),
    Sketcher.Constraint("Equal", 41, 43),
    Sketcher.Constraint("Equal", 43, 46),
    Sketcher.Constraint("Equal", 48, 50),
    Sketcher.Constraint("Equal", 50, 52),
    Sketcher.Constraint("Equal", 52, 54),
    Sketcher.Constraint("Equal", 54, 57),
    Sketcher.Constraint("Equal", 57, 59),
    Sketcher.Constraint("Equal", 59, 61),
    Sketcher.Constraint("Equal", 61, 63),
    Sketcher.Constraint("Equal", 63, 65),
    Sketcher.Constraint("Equal", 65, 67),
    Sketcher.Constraint("Equal", 67, 69),
    Sketcher.Constraint("Equal", 69, 71),
    Sketcher.Constraint("Equal", 71, 73),
    Sketcher.Constraint("Equal", 73, 75),
    Sketcher.Constraint("Equal", 75, 77),
    Sketcher.Constraint("Equal", 77, 79),
    Sketcher.Constraint("Symmetric", 0, 3, 26, 3, -1, 1),
    Sketcher.Constraint("Symmetric", 7, 3, 31, 3, -1, 1),
    Sketcher.Constraint("Symmetric", 14, 3, 37, 3, -1, 1),
    Sketcher.Constraint("Symmetric", 19, 3, 43, 3, -1, 1),
    Sketcher.Constraint("Symmetric", 63, 3, 65, 3, -1, 1),
    Sketcher.Constraint("Symmetric", 61, 3, 67, 3, -1, 1),
    Sketcher.Constraint("Symmetric", 59, 3, 69, 3, -1, 1),
    Sketcher.Constraint("Symmetric", 57, 3, 71, 3, -1, 1),
    Sketcher.Constraint("Symmetric", 50, 3, 73, 3, -1, 1),
    Sketcher.Constraint("Symmetric", 48, 3, 75, 3, -1, 1),
    Sketcher.Constraint("Symmetric", 52, 3, 77, 3, -1, 1),
    Sketcher.Constraint("Symmetric", 54, 3, 79, 3, -1, 1),
    Sketcher.Constraint("Symmetric", 14, 3, 19, 3, -2),
    Sketcher.Constraint("Symmetric", 7, 3, 26, 3, -2),
    Sketcher.Constraint("Symmetric", 54, 3, 57, 3, -2),
    Sketcher.Constraint("Symmetric", 52, 3, 59, 3, -2),
    Sketcher.Constraint("Symmetric", 50, 3, 61, 3, -2),
    Sketcher.Constraint("Symmetric", 48, 3, 63, 3, -2),
    Sketcher.Constraint("Horizontal", 52, 3, 54, 3),
    Sketcher.Constraint("Horizontal", 79, 3, 16, 1),
    Sketcher.Constraint("Horizontal", 44, 2, 52, 1),
    Sketcher.Constraint("Horizontal", 53, 1, 54, 1),
    Sketcher.Constraint("Horizontal", 55, 1, 56, 1),
    Sketcher.Constraint("Horizontal", 57, 1, 58, 1),
    Sketcher.Constraint("Horizontal", 23, 2, 68, 1),
    Sketcher.Constraint("Horizontal", 69, 1, 70, 1),
    Sketcher.Constraint("Horizontal", 71, 1, 76, 1),
    Sketcher.Constraint("Horizontal", 77, 1, 78, 1),
    Sketcher.Constraint("Vertical", 48, 3, 50, 3),
    Sketcher.Constraint("Vertical", 67, 3, 0, 1),
    Sketcher.Constraint("Vertical", 8, 2, 48, 1),
    Sketcher.Constraint("Vertical", 49, 1, 50, 1),
    Sketcher.Constraint("Vertical", 35, 2, 60, 1),
    Sketcher.Constraint("Vertical", 61, 1, 62, 1),
    Sketcher.Constraint("Vertical", 51, 1, 64, 1),
    Sketcher.Constraint("Vertical", 65, 1, 66, 1),
    Sketcher.Constraint("Vertical", 63, 1, 72, 1),
    Sketcher.Constraint("Vertical", 73, 1, 74, 1),
    Sketcher.Constraint("Equal", 47, 53),
    Sketcher.Constraint("DistanceX", 48, 3, -1, 1, Q("0.5 in")),
    Sketcher.Constraint("DistanceY", -1, 1, 50, 3, Q("0.4 in")),
    Sketcher.Constraint("DistanceX", 52, 3, -1, 1, Q("0.4 in")),
    Sketcher.Constraint("DistanceY", -1, 1, 52, 3, Q("0.5 in")),
    Sketcher.Constraint("Radius", 0, Q("0.0435 in")),
    Sketcher.Constraint("DistanceY", -1, 1, 48, 3, Q("0.228 in")),
    Sketcher.Constraint("DistanceX", 54, 3, -1, 1, Q("0.228 in")),
    Sketcher.Constraint("DistanceY", -1, 1, 1, 2, Q("0.128 in")),
    Sketcher.Constraint("DistanceX", 12, 2, -1, 1, Q("0.128 in")),
])
pocket2 = body.newObject("PartDesign::Pocket", "Pocket001")
pocket2.Profile = sketch3
pocket2.Type = "ThroughAll"
doc.recompute()

fillet = body.newObject("PartDesign::Fillet", "Fillet")
fillet.Base = (pocket2, edges_at(pocket2, [
    (-2.959, -4.521, 88.9),
    (2.959, -4.521, 88.9),
    (4.521, -2.959, 88.9),
    (4.521, 2.959, 88.9),
    (-4.521, 2.959, 88.9),
    (-4.521, -2.959, 88.9),
    (2.959, 4.521, 88.9),
    (-2.959, 4.521, 88.9),
]))
fillet.Radius = Q("0.1 in")
doc.recompute()

fillet2 = body.newObject("PartDesign::Fillet", "Fillet001")
fillet2.Base = (fillet, edges_at(fillet, [
    (-12.7, 12.7, 88.9),
    (12.7, 12.7, 88.9),
    (12.7, -12.7, 88.9),
    (-12.7, -12.7, 88.9),
]))
fillet2.Radius = Q("0.07 in")

doc.recompute()
